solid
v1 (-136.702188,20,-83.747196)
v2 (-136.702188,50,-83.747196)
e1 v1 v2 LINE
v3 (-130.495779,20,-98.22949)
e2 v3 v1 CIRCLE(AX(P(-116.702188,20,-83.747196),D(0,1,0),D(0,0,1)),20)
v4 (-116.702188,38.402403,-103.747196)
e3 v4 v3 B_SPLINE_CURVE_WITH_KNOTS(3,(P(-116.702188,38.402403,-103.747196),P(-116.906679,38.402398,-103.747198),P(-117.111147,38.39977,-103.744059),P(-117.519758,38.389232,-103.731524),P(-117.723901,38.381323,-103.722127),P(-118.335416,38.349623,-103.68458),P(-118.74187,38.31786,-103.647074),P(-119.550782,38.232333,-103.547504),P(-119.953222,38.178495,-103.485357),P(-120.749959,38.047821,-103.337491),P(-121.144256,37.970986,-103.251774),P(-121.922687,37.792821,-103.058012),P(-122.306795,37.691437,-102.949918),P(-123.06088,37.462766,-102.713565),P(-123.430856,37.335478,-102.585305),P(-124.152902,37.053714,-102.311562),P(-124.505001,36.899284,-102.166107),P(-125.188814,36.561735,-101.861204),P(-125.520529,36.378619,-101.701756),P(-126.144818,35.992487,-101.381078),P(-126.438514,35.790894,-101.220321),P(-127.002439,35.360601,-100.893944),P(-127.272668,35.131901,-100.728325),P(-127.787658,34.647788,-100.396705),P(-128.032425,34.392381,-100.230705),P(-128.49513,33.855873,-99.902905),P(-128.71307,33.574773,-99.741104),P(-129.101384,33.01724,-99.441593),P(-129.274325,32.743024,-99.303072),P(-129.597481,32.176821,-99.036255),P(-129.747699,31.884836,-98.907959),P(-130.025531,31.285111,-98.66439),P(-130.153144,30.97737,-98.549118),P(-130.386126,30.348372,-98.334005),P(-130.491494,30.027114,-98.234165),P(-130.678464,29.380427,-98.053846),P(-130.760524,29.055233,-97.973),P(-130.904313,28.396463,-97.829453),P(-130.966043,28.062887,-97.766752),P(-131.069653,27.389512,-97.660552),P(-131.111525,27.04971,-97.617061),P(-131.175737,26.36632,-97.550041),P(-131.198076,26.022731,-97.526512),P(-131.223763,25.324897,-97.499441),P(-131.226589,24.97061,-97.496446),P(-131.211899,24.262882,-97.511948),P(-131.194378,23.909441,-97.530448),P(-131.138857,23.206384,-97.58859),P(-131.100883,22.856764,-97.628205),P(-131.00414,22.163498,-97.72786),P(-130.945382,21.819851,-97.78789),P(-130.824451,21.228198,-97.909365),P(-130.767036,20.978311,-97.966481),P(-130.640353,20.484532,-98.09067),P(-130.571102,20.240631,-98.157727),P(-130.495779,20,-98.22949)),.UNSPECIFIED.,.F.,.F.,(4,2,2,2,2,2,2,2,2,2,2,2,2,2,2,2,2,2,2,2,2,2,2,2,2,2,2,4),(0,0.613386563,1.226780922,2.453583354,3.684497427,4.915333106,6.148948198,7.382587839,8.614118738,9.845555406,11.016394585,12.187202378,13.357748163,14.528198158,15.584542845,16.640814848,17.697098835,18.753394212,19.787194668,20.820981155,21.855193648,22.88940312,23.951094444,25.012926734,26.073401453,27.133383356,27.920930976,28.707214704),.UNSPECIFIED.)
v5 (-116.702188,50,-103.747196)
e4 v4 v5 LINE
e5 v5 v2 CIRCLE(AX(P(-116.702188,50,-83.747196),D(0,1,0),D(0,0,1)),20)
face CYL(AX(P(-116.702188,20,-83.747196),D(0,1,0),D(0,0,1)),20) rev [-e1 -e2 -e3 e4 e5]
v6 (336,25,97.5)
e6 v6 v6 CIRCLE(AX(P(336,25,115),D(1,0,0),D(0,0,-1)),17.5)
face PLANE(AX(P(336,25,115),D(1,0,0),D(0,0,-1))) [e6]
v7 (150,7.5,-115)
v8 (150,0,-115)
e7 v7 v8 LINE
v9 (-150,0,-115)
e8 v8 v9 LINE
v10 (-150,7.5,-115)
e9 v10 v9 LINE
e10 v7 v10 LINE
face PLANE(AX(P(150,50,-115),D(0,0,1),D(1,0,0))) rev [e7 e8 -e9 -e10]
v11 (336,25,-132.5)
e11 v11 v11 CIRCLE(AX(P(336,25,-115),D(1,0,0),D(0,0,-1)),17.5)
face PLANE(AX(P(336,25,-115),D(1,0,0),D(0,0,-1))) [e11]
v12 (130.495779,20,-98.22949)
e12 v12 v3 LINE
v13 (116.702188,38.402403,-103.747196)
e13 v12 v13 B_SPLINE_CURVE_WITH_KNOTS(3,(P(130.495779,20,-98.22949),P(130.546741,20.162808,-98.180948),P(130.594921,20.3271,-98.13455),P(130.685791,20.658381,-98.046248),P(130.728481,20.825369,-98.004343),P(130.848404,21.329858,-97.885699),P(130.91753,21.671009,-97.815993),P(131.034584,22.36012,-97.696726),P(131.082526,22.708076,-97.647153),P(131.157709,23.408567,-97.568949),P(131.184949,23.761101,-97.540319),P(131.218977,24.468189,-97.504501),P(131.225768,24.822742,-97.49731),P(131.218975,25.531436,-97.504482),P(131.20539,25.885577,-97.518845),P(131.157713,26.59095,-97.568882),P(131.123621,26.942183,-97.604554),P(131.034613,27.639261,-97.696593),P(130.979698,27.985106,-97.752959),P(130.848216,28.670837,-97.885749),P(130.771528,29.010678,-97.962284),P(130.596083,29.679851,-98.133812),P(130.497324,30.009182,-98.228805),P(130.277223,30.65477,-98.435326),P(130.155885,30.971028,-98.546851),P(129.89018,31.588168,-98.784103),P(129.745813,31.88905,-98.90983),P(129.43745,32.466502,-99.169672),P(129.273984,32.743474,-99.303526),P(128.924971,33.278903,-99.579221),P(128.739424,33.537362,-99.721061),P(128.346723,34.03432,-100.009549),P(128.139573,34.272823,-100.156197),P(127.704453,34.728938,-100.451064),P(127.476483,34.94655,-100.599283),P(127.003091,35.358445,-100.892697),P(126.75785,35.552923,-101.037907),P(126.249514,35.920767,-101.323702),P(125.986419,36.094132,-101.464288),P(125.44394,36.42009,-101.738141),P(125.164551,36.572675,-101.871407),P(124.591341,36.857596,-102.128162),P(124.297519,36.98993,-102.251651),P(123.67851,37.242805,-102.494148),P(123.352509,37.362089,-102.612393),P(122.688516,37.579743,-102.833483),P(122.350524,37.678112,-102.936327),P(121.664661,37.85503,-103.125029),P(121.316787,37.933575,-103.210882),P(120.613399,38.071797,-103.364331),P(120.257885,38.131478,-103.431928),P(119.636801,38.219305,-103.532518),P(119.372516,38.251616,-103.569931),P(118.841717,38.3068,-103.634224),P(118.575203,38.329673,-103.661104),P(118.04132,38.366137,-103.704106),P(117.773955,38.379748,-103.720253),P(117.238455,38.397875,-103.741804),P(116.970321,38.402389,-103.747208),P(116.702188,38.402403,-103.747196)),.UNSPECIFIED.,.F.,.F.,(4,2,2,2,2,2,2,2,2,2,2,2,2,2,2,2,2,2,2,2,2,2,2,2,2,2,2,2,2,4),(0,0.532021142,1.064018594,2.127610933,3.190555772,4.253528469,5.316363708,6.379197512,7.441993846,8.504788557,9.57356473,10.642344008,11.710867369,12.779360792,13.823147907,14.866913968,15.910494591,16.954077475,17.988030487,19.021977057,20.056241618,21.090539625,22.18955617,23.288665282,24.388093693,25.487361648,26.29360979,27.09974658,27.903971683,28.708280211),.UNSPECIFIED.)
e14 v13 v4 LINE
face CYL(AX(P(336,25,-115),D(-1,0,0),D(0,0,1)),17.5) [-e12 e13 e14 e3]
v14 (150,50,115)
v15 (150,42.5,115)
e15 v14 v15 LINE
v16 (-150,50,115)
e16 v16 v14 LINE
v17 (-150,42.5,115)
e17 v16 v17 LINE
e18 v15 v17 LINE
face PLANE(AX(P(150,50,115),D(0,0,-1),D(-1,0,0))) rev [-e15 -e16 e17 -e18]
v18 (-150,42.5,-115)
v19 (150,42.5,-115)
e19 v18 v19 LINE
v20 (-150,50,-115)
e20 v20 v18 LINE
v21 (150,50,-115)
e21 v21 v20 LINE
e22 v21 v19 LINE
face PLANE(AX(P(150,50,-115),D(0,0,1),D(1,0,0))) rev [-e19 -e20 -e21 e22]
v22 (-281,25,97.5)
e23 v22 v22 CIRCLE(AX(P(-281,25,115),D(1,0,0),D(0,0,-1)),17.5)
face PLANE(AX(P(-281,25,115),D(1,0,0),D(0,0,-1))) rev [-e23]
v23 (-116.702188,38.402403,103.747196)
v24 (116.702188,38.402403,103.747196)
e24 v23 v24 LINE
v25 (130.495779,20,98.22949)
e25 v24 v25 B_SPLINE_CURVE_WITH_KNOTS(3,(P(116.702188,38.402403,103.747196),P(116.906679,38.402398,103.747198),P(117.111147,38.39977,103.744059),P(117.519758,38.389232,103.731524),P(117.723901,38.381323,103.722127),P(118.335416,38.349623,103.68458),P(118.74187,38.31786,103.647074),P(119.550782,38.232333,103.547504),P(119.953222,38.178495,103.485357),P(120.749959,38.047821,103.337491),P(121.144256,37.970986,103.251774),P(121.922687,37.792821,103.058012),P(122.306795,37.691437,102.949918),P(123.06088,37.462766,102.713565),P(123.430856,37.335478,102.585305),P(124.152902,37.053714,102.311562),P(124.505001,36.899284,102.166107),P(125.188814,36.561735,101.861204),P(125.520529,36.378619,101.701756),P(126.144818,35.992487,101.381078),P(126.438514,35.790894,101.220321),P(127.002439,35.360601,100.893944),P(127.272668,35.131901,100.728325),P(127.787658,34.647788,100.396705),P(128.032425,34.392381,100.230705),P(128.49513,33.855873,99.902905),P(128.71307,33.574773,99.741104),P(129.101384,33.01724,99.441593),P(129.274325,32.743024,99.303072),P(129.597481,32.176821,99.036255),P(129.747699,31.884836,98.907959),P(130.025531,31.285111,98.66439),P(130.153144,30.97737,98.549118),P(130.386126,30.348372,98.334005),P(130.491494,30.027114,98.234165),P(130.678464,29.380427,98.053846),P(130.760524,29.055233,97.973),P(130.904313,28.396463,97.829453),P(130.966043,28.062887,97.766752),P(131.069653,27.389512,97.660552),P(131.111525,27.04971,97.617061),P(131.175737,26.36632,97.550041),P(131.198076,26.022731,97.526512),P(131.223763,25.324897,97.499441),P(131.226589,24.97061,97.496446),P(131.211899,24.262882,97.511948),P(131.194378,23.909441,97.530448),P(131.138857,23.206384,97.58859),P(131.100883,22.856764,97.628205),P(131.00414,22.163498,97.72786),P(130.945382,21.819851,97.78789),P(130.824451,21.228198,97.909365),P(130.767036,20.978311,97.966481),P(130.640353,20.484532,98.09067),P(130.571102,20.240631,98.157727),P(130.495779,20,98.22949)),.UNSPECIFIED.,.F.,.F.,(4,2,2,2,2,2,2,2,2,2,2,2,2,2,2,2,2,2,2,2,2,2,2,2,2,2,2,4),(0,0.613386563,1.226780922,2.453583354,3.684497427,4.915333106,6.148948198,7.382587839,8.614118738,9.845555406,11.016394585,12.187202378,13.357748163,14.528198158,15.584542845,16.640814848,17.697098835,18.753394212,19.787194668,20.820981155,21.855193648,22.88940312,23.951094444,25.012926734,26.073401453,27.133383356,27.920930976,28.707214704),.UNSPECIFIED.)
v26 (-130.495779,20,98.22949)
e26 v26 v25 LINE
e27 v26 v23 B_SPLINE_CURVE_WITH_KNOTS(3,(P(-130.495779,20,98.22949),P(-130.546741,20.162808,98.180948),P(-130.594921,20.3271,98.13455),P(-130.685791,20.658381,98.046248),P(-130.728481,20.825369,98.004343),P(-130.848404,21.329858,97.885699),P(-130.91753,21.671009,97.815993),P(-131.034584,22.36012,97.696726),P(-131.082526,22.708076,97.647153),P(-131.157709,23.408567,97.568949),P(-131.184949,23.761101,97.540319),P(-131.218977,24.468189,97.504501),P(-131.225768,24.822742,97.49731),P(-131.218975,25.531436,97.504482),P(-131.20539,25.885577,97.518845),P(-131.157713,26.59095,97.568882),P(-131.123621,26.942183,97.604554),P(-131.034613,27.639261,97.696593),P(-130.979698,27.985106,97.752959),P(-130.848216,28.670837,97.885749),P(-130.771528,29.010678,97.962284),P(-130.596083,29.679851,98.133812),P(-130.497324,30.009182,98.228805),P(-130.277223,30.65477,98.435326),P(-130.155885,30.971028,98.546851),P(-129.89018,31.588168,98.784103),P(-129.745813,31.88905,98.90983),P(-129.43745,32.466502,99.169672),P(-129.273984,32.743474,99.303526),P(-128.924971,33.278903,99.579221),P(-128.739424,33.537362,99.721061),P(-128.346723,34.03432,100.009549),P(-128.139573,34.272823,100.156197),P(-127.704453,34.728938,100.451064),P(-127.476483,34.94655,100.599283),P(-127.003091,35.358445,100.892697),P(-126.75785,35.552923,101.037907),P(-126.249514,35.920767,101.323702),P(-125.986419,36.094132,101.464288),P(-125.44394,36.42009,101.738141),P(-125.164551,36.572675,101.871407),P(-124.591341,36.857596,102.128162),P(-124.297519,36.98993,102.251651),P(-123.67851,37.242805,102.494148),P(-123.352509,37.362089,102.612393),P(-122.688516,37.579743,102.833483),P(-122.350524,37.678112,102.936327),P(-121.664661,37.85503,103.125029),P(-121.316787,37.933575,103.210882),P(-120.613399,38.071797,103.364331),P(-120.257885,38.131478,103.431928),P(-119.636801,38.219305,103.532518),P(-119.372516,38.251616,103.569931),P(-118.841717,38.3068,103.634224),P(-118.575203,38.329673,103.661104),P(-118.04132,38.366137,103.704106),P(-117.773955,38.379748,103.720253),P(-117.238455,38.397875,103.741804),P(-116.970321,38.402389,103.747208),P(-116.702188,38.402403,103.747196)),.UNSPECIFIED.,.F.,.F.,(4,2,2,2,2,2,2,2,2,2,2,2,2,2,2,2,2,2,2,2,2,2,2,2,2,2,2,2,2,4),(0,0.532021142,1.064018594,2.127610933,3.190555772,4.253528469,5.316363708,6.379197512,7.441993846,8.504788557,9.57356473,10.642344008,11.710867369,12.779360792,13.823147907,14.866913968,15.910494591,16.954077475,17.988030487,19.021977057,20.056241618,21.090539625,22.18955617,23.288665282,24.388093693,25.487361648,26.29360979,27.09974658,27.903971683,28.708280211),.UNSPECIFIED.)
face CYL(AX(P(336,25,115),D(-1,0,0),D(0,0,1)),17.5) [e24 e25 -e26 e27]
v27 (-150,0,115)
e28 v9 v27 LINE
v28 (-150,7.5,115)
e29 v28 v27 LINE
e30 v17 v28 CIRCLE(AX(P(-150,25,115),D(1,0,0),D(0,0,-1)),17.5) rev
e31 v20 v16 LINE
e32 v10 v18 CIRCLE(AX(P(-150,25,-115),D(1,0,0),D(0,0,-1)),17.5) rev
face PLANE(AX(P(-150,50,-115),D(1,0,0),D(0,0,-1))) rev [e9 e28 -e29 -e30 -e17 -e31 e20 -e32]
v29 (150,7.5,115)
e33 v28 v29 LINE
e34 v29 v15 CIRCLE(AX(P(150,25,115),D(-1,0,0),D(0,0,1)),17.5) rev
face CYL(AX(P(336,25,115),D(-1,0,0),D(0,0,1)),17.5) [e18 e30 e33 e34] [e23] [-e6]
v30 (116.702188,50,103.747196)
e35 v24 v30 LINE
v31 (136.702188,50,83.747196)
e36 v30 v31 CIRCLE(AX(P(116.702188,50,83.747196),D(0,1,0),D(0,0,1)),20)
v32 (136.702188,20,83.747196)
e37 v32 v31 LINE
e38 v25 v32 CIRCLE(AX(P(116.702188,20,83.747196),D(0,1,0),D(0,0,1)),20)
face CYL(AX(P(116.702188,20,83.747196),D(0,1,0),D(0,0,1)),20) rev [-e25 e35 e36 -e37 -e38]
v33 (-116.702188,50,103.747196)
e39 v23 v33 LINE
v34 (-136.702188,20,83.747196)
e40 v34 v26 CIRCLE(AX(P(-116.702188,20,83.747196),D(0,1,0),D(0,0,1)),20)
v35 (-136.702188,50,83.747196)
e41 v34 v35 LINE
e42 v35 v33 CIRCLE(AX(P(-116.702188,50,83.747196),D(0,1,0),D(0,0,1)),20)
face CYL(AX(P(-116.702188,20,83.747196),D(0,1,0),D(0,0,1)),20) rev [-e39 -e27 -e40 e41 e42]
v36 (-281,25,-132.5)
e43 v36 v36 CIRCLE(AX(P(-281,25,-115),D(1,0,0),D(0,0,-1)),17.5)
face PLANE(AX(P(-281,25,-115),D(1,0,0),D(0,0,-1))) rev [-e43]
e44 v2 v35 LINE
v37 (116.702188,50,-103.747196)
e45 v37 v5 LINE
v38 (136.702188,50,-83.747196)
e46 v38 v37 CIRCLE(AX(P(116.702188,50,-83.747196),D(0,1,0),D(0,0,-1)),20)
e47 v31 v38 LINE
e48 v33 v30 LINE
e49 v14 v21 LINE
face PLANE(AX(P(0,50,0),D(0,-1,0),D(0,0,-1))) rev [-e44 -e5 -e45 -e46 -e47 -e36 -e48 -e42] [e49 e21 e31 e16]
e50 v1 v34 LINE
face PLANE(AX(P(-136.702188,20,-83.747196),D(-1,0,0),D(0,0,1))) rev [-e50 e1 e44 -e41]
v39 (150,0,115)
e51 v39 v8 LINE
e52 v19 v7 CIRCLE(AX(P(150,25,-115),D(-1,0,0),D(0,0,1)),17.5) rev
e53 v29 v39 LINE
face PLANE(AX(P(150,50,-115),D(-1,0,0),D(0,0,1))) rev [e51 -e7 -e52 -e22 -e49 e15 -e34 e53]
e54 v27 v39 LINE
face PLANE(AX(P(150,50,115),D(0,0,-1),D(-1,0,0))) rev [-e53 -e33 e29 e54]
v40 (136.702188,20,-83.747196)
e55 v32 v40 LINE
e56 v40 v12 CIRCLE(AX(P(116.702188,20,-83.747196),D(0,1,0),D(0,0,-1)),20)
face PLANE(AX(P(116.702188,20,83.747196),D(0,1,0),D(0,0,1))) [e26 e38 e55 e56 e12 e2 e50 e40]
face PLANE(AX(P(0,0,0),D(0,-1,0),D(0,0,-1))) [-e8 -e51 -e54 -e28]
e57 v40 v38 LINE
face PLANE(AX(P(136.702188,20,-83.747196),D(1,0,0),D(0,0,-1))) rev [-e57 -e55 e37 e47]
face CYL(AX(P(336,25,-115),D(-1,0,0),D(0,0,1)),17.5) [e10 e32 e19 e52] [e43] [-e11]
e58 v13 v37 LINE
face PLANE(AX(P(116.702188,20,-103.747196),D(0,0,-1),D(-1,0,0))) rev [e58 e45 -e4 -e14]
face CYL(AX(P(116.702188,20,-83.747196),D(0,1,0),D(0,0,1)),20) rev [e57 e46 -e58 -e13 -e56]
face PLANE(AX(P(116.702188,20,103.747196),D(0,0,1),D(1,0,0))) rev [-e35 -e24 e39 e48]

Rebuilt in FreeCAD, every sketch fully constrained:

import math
import FreeCAD as App
import Part
import Sketcher
from FreeCAD import Vector


def add_polygon(sketch, points):
    """Adds a closed chain of lines whose ends are joined by coincident constraints."""
    first, n = sketch.GeometryCount, len(points)
    for a, b in zip(points, points[1:] + points[:1]):
        sketch.addGeometry(Part.LineSegment(App.Vector(*a, 0), App.Vector(*b, 0)), False)
    for i in range(n):
        sketch.addConstraint(Sketcher.Constraint("Coincident", first + i, 2, first + (i + 1) % n, 1))

doc = App.newDocument("Part")
body = doc.addObject("PartDesign::Body", "Body")

sketch1 = body.newObject("Sketcher::SketchObject", "Sketch")
sketch1.AttachmentSupport = (doc.getObject("XZ_Plane"), [""])
sketch1.MapMode = "FlatFace"
add_polygon(sketch1, [(-150, -115), (-150, 115), (150, 115), (150, -115)])
sketch1.addConstraint([
    Sketcher.Constraint("Vertical", 0),
    Sketcher.Constraint("Horizontal", 1),
    Sketcher.Constraint("Vertical", 2),
    Sketcher.Constraint("Horizontal", 3),
    Sketcher.Constraint("Symmetric", 0, 2, 2, 2, -1, 1),
    Sketcher.Constraint("DistanceX", 1, 1, 1, 2, 300.0),
    Sketcher.Constraint("DistanceY", 0, 1, 0, 2, 230.0),
])
pad1 = body.newObject("PartDesign::Pad", "Pad")
pad1.Profile = sketch1
pad1.Length = 50
pad1.Reversed = True

sketch2 = body.newObject("Sketcher::SketchObject", "Sketch001")
sketch2.AttachmentSupport = (doc.getObject("XZ_Plane"), [""])
sketch2.MapMode = "FlatFace"
sketch2.AttachmentOffset = App.Placement(Vector(0, 0, -50), App.Rotation())
sketch2.addGeometry([
    Part.LineSegment(Vector(117, -104, 0), Vector(-117, -104, 0)),
    Part.ArcOfCircle(Part.Circle(Vector(-117, -84, 0), Vector(0, 0, 1), 20), math.radians(-180), math.radians(-90)),
    Part.LineSegment(Vector(-137, -84, 0), Vector(-137, 84, 0)),
    Part.ArcOfCircle(Part.Circle(Vector(-117, 84, 0), Vector(0, 0, 1), 20), math.radians(90), math.radians(180)),
    Part.LineSegment(Vector(-117, 104, 0), Vector(117, 104, 0)),
    Part.ArcOfCircle(Part.Circle(Vector(117, 84, 0), Vector(0, 0, 1), 20), math.radians(0), math.radians(90)),
    Part.LineSegment(Vector(137, 84, 0), Vector(137, -84, 0)),
    Part.ArcOfCircle(Part.Circle(Vector(117, -84, 0), Vector(0, 0, 1), 20), math.radians(-90), math.radians(0)),
], False)
sketch2.addConstraint([
    Sketcher.Constraint("Tangent", 0, 2, 1, 2),
    Sketcher.Constraint("Tangent", 1, 1, 2, 1),
    Sketcher.Constraint("Tangent", 2, 2, 3, 2),
    Sketcher.Constraint("Tangent", 3, 1, 4, 1),
    Sketcher.Constraint("Tangent", 4, 2, 5, 2),
    Sketcher.Constraint("Tangent", 5, 1, 6, 1),
    Sketcher.Constraint("Tangent", 6, 2, 7, 2),
    Sketcher.Constraint("Tangent", 7, 1, 0, 1),
    Sketcher.Constraint("Horizontal", 0),
    Sketcher.Constraint("Vertical", 2),
    Sketcher.Constraint("Horizontal", 4),
    Sketcher.Constraint("Vertical", 6),
    Sketcher.Constraint("Equal", 1, 3),
    Sketcher.Constraint("Equal", 3, 5),
    Sketcher.Constraint("Equal", 5, 7),
    Sketcher.Constraint("Symmetric", 1, 3, 5, 3, -1, 1),
    Sketcher.Constraint("Radius", 1, 20.0),
    Sketcher.Constraint("DistanceX", 0, 2, 0, 1, 233.404376),
    Sketcher.Constraint("DistanceY", 2, 1, 2, 2, 167.494392),
])
pocket1 = body.newObject("PartDesign::Pocket", "Pocket")
pocket1.Profile = sketch2
pocket1.Length = 30
pocket1.Reversed = True

sketch3 = body.newObject("Sketcher::SketchObject", "Sketch002")
sketch3.AttachmentSupport = (doc.getObject("YZ_Plane"), [""])
sketch3.MapMode = "FlatFace"
sketch3.AttachmentOffset = App.Placement(Vector(0, 0, 150), App.Rotation())
sketch3.addGeometry([
    Part.Circle(Vector(25, -115, 0), Vector(0, 0, 1), 18),
    Part.Circle(Vector(25, 115, 0), Vector(0, 0, 1), 18),
], False)
sketch3.addConstraint([
    Sketcher.Constraint("Equal", 0, 1),
    Sketcher.Constraint("Symmetric", 0, 3, 1, 3, -1),
    Sketcher.Constraint("Diameter", 0, 35.0),
    Sketcher.Constraint("DistanceX", -1, 1, 0, 3, 25.0),
    Sketcher.Constraint("DistanceY", 0, 3, -1, 1, 115.0),
])
pad2 = body.newObject("PartDesign::Pad", "Pad001")
pad2.Profile = sketch3
pad2.Type = "TwoLengths"
pad2.Length = 186
pad2.Length2 = 431

doc.recompute()
